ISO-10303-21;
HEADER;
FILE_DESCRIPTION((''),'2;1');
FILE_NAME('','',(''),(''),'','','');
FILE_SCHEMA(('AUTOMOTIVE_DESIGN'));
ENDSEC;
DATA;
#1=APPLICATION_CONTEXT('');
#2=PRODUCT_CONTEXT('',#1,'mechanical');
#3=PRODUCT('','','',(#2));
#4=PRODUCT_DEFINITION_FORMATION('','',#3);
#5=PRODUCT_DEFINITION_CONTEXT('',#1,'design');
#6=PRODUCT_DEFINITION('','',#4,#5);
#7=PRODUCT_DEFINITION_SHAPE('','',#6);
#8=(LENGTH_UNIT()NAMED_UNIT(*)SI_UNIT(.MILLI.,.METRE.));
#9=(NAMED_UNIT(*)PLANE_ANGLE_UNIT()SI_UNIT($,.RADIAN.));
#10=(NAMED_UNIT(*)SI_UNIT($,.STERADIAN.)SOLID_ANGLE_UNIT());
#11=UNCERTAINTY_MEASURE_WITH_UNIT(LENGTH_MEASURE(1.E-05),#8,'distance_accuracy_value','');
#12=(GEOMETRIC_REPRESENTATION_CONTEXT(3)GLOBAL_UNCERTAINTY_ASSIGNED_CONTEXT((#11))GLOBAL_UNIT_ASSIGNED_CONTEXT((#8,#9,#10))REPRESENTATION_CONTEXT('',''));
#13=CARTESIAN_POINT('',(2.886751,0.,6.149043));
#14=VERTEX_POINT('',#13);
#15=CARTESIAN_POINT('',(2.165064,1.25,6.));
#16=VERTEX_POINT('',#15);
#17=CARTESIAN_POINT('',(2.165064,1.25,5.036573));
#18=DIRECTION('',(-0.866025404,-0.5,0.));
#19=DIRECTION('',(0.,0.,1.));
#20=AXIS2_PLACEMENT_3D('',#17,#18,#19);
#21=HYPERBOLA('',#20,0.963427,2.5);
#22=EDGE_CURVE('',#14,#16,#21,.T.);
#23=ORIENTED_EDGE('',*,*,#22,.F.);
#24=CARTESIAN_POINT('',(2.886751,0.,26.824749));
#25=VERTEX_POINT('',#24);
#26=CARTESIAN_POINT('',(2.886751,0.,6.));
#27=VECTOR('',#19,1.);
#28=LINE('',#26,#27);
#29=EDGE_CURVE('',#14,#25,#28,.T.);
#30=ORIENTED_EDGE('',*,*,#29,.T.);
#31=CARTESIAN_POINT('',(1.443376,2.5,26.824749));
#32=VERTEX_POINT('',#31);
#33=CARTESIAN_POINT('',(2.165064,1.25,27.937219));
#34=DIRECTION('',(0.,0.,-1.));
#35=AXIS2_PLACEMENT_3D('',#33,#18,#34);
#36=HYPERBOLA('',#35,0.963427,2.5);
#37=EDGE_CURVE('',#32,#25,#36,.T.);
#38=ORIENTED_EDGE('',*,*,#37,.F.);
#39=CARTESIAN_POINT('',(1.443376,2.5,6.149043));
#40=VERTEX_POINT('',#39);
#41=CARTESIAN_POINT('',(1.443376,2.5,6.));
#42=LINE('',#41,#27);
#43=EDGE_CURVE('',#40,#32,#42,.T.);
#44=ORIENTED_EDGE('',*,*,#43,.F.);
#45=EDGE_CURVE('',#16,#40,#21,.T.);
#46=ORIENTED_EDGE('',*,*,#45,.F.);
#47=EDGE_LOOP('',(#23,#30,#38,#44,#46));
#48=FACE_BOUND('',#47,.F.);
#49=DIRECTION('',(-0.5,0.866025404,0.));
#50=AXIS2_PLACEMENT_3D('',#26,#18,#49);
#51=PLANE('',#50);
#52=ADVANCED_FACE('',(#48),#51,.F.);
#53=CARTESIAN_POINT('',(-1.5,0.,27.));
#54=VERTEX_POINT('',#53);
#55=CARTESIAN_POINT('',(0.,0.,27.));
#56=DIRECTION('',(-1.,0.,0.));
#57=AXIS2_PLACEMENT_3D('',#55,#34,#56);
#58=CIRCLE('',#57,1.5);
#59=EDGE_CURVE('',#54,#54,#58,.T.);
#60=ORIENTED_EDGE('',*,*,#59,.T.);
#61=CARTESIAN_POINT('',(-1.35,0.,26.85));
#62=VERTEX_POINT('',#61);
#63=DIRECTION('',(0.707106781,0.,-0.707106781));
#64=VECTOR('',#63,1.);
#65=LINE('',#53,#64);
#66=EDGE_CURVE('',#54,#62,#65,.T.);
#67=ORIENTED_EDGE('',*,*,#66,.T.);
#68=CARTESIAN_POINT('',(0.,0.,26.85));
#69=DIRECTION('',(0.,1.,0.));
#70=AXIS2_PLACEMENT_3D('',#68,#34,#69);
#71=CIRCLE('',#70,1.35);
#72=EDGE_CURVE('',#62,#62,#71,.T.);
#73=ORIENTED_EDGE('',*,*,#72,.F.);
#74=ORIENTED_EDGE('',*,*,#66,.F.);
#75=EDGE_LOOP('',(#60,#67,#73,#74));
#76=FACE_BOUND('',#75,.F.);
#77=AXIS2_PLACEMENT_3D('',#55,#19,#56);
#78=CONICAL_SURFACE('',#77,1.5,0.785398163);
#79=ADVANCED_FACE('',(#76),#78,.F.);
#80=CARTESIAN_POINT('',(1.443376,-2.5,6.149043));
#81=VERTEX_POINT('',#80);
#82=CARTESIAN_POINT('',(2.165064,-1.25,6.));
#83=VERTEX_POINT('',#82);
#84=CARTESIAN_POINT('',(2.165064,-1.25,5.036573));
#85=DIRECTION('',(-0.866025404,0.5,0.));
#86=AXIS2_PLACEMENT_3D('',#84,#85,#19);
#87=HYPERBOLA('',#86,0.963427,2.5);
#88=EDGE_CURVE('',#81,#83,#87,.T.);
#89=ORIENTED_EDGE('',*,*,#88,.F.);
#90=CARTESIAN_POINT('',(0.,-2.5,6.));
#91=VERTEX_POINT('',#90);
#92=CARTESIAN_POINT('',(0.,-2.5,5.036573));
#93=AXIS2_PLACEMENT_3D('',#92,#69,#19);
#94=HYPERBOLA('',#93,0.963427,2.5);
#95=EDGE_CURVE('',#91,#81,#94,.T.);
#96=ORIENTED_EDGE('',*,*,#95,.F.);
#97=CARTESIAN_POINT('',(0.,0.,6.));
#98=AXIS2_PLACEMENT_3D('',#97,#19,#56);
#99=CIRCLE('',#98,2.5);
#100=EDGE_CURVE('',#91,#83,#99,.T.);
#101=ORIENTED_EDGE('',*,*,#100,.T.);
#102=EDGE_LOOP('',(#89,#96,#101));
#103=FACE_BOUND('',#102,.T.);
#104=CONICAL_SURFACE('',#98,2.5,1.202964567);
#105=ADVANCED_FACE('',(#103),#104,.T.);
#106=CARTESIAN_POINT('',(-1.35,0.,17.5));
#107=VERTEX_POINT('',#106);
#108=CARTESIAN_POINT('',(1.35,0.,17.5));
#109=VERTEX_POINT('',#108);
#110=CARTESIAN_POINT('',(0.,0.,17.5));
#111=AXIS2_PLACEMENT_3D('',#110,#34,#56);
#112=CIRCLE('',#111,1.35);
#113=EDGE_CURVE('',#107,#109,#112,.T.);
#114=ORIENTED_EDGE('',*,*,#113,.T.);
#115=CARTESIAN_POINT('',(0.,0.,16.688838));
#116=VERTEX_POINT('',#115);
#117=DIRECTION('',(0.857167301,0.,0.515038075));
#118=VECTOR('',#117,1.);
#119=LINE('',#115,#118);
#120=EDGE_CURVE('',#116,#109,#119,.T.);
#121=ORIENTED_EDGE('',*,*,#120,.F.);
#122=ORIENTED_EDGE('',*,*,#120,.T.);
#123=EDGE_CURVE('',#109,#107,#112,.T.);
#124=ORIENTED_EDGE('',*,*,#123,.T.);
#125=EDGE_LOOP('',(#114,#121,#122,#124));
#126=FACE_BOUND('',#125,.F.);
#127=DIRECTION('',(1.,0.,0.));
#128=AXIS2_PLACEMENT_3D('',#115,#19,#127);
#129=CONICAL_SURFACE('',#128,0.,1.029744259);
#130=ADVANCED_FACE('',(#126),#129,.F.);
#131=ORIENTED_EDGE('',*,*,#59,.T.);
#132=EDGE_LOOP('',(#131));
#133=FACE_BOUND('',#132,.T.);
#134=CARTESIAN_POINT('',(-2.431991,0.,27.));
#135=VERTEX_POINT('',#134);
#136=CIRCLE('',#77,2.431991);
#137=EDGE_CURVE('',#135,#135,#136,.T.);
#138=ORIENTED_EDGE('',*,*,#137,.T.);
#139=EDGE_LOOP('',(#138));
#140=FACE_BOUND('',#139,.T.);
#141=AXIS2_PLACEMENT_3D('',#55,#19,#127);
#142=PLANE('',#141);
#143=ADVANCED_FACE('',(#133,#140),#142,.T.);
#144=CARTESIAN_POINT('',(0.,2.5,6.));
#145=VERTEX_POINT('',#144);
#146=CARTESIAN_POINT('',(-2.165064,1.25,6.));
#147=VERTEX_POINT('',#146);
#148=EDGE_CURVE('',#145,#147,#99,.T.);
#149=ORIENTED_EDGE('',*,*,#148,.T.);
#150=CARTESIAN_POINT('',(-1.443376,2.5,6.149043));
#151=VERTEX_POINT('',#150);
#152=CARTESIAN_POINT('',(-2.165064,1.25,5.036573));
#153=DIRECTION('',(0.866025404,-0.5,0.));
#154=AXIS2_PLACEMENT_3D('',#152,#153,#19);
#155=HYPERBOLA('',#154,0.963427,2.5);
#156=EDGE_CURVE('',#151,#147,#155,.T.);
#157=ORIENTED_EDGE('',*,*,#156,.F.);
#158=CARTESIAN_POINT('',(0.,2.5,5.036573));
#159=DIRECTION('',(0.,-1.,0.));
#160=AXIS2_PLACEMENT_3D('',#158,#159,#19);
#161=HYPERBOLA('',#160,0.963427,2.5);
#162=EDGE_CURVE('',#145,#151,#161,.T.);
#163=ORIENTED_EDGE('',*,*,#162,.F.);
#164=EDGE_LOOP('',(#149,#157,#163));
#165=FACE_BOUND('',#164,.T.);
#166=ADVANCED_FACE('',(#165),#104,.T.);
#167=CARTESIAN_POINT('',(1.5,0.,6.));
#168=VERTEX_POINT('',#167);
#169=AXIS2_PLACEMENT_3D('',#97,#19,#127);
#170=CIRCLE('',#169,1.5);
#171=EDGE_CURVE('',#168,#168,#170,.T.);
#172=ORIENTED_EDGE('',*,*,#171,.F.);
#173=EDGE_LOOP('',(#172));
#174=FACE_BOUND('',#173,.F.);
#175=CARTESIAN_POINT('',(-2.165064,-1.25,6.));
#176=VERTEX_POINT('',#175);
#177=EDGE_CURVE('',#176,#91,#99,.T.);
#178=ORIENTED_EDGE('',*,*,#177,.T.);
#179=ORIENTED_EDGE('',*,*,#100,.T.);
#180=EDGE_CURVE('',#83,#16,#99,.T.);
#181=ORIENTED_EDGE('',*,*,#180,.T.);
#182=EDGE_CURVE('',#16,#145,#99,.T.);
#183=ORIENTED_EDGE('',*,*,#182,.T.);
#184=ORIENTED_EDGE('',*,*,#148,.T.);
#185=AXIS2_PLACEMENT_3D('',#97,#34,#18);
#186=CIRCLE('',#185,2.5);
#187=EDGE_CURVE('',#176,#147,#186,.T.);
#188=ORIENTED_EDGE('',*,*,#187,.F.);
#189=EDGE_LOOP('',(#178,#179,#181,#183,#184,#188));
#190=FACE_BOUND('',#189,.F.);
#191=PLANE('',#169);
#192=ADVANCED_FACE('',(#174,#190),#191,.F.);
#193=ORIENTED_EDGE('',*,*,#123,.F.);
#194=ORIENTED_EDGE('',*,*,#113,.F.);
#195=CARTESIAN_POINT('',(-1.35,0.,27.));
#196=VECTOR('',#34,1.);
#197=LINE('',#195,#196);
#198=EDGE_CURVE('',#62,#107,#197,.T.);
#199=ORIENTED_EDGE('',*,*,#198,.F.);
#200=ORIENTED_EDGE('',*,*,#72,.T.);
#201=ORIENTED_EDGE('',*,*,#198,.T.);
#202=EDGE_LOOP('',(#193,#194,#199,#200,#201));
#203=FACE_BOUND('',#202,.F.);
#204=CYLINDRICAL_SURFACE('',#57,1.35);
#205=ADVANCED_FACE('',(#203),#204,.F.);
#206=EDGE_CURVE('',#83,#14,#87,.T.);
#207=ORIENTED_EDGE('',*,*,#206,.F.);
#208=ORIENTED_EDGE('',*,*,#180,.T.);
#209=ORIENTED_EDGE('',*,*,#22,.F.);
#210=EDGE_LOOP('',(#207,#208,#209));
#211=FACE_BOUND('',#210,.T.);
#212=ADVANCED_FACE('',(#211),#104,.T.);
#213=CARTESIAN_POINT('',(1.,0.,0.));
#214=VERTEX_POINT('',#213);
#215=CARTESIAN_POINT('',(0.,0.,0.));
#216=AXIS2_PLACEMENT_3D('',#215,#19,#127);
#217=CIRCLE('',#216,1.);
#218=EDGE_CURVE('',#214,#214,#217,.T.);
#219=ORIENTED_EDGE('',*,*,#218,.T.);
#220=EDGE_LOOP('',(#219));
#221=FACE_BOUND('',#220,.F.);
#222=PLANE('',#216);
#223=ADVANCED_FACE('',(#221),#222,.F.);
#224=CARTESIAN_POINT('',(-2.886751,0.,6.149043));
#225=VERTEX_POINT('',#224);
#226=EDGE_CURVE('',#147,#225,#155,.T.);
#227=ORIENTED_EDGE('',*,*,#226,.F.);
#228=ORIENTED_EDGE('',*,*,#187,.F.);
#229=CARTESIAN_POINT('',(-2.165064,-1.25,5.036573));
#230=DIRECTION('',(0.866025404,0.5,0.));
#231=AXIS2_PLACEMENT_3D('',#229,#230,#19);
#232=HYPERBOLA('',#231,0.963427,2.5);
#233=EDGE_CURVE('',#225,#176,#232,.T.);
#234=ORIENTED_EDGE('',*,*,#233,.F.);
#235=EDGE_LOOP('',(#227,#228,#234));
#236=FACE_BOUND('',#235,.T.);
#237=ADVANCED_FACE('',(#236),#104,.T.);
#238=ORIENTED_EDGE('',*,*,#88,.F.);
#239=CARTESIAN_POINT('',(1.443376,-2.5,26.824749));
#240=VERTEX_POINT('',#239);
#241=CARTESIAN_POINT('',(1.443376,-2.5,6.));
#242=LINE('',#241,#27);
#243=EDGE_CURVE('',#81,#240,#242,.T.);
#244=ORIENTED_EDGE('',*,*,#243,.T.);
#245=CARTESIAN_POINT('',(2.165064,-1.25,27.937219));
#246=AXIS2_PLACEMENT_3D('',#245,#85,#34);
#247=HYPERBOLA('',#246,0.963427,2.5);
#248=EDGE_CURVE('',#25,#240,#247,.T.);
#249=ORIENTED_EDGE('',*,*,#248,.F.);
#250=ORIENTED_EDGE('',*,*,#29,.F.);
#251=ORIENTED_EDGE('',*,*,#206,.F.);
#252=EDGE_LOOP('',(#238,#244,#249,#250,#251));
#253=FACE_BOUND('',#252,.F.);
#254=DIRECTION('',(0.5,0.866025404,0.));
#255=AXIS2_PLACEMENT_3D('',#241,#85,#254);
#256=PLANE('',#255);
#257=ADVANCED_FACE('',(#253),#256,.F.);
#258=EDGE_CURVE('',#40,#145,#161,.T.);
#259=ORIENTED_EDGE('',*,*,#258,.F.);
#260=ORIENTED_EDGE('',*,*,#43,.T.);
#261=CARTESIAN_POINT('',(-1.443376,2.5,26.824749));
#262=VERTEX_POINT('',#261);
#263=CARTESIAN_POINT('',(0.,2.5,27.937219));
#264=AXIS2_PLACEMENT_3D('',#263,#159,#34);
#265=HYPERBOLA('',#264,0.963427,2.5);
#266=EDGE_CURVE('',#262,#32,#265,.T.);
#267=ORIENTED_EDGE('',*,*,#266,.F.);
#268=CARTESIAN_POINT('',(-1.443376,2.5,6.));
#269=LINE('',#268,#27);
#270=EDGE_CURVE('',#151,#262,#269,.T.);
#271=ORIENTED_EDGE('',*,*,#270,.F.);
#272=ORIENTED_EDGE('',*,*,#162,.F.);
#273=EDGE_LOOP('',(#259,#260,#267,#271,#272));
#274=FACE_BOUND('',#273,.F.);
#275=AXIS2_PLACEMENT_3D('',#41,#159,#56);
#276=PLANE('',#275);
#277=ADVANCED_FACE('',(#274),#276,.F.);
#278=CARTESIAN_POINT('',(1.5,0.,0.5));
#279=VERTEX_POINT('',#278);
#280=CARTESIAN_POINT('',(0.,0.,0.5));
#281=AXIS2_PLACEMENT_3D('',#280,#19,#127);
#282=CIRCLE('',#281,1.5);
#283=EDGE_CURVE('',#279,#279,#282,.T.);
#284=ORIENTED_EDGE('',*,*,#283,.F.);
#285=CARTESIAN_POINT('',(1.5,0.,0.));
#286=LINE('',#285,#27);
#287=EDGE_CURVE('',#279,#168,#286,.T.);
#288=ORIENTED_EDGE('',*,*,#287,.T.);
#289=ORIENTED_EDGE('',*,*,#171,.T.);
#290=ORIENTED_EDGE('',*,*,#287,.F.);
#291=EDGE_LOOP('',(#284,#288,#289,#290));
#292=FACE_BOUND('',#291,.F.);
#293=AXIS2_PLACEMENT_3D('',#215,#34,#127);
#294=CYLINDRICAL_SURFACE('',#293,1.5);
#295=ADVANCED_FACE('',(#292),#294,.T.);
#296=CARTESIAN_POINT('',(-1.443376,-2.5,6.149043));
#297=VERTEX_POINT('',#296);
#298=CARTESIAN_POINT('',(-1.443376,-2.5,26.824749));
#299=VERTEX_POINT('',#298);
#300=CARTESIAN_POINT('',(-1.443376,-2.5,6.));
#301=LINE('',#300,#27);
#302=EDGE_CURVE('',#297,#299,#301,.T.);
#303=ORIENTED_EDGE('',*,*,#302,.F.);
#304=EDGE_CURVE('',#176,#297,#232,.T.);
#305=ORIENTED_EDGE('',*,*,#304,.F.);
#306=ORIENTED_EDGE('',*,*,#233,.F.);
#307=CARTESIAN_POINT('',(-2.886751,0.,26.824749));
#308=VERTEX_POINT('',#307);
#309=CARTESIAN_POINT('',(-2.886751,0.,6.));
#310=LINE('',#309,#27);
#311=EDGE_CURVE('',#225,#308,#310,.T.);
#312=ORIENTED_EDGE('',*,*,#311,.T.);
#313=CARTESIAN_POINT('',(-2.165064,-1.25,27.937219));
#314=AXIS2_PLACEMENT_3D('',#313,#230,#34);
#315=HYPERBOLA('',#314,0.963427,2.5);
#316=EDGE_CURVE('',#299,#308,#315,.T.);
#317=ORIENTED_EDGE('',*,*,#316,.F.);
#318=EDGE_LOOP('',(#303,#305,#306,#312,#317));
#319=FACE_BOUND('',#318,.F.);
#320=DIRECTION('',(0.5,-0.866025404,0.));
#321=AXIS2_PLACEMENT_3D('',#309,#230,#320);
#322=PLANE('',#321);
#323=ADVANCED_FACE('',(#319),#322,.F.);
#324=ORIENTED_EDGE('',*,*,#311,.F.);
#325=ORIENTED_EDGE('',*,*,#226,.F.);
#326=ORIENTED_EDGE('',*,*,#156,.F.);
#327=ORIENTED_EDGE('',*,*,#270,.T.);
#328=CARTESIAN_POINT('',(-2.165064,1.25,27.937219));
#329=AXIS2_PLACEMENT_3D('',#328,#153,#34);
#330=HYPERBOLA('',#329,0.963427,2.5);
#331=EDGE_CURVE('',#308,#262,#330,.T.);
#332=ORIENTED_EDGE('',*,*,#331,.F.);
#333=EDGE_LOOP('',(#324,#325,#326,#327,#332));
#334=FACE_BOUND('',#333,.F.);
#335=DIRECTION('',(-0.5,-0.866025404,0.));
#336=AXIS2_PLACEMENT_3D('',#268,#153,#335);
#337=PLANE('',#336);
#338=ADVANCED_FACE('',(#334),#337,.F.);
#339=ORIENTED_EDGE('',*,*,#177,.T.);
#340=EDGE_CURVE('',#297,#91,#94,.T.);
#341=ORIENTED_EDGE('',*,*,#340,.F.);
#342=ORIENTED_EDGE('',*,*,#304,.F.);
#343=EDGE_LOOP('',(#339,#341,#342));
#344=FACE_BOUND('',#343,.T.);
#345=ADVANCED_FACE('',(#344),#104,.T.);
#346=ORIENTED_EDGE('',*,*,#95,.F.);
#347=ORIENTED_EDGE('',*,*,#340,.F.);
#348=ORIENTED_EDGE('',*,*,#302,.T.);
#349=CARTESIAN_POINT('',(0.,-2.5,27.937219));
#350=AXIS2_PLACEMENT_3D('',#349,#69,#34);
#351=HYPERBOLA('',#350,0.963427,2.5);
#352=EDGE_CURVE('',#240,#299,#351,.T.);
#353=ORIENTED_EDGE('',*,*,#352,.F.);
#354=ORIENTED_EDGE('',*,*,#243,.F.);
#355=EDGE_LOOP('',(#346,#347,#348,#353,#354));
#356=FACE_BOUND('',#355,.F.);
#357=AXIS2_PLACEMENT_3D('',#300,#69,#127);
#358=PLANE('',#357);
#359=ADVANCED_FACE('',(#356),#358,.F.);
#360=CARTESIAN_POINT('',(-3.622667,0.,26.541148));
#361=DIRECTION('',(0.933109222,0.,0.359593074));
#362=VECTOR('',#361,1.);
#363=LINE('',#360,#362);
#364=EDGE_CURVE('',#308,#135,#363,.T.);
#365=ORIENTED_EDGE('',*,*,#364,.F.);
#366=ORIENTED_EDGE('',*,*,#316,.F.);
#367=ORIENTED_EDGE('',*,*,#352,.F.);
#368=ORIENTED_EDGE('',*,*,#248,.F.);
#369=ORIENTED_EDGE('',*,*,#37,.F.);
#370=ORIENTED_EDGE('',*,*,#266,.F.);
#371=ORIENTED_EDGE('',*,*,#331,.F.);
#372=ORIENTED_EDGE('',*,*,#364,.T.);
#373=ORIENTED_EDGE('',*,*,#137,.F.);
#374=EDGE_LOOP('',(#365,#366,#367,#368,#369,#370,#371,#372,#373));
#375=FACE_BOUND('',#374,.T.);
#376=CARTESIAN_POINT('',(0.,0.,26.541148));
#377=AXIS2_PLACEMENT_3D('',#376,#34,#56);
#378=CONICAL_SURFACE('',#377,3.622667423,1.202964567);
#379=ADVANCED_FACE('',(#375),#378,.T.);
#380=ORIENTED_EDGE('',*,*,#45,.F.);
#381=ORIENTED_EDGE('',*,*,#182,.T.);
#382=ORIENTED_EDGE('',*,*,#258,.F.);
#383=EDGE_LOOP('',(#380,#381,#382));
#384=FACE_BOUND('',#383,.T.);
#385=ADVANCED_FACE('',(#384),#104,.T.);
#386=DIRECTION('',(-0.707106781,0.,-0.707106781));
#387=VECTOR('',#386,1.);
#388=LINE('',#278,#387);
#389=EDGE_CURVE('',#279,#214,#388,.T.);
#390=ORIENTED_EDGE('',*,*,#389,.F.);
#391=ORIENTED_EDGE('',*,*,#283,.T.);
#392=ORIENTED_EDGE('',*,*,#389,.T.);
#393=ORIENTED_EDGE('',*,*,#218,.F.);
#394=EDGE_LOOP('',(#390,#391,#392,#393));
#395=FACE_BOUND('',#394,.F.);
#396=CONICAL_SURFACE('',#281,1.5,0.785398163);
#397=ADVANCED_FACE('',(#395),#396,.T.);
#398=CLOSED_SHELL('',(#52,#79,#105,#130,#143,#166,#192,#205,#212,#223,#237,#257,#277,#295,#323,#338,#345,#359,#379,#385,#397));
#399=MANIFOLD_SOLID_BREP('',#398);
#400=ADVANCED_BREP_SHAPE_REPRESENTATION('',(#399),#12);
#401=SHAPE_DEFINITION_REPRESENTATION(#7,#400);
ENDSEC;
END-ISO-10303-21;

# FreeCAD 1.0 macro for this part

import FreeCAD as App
import Part
import Sketcher

V = App.Vector
Q = App.Units.Quantity


def edges_at(feature, points):
    """Names of the edges that pass closest to the given points."""
    edges = feature.Shape.Edges
    near = lambda p: min(range(len(edges)), key=lambda i: edges[i].distToShape(Part.Vertex(*p))[0])
    return sorted({f"Edge{near(p) + 1}" for p in points})

doc = App.newDocument("Part")
body = doc.addObject("PartDesign::Body", "Body")

sketch1 = doc.addObject("Sketcher::SketchObject", "Sketch")
body.addObject(sketch1)
sketch1.AttachmentSupport = (doc.XY_Plane, [""])
sketch1.MapMode = "FlatFace"
sketch1.addGeometry(Part.Circle(V(0, 0, 0), V(0, 0, 1), 1.5), False)
sketch1.addConstraint([
    Sketcher.Constraint("Coincident", 0, 3, -1, 1),
    Sketcher.Constraint("Diameter", 0, 3.0),
])
pad1 = doc.addObject("PartDesign::Pad", "Pad")
body.addObject(pad1)
pad1.Profile = sketch1
pad1.Length = 6

sketch2 = doc.addObject("Sketcher::SketchObject", "Sketch001")
body.addObject(sketch2)
sketch2.AttachmentSupport = (doc.XY_Plane, [""])
sketch2.MapMode = "FlatFace"
sketch2.AttachmentOffset = App.Placement(V(0, 0, 6), App.Rotation())
sketch2.addGeometry([
    Part.LineSegment(V(-1.4, -2.5, 0), V(1.4, -2.5, 0)),
    Part.LineSegment(V(1.4, -2.5, 0), V(2.9, 0, 0)),
    Part.LineSegment(V(2.9, 0, 0), V(1.4, 2.5, 0)),
    Part.LineSegment(V(1.4, 2.5, 0), V(-1.4, 2.5, 0)),
    Part.LineSegment(V(-1.4, 2.5, 0), V(-2.9, 0, 0)),
    Part.LineSegment(V(-2.9, 0, 0), V(-1.4, -2.5, 0)),
], False)
sketch2.addConstraint([
    Sketcher.Constraint("Coincident", 0, 2, 1, 1),
    Sketcher.Constraint("Coincident", 1, 2, 2, 1),
    Sketcher.Constraint("Coincident", 2, 2, 3, 1),
    Sketcher.Constraint("Coincident", 3, 2, 4, 1),
    Sketcher.Constraint("Coincident", 4, 2, 5, 1),
    Sketcher.Constraint("Coincident", 5, 2, 0, 1),
    Sketcher.Constraint("Horizontal", 0),
    Sketcher.Constraint("Horizontal", 3),
    Sketcher.Constraint("Symmetric", 0, 2, 3, 2, -1, 1),
    Sketcher.Constraint("Symmetric", 1, 2, 4, 2, -1, 1),
    Sketcher.Constraint("PointOnObject", 1, 2, -1),
    Sketcher.Constraint("Parallel", 2, 5),
    Sketcher.Constraint("Vertical", 0, 2, 2, 2),
    Sketcher.Constraint("Angle", 1, Q("60 deg")),
    Sketcher.Constraint("DistanceY", 0, 2, 2, 2, 5.0),
    Sketcher.Constraint("DistanceX", 0, 1, 0, 2, 2.886751),
])
pad2 = doc.addObject("PartDesign::Pad", "Pad001")
body.addObject(pad2)
pad2.Profile = sketch2
pad2.Length = 21

sketch3 = doc.addObject("Sketcher::SketchObject", "Sketch002")
body.addObject(sketch3)
sketch3.AttachmentSupport = (doc.XY_Plane, [""])
sketch3.MapMode = "FlatFace"
sketch3.AttachmentOffset = App.Placement(V(0, 0, 27), App.Rotation())
sketch3.addGeometry(Part.Circle(V(0, 0, 0), V(0, 0, 1), 1.4), False)
sketch3.addConstraint([
    Sketcher.Constraint("Coincident", 0, 3, -1, 1),
    Sketcher.Constraint("Diameter", 0, 2.7),
])
doc.recompute()
hole = doc.addObject("PartDesign::Hole", "Hole")
body.addObject(hole)
hole.Profile = sketch3
hole.ThreadType = "None"
hole.Diameter = 2.7
hole.DepthType = "Dimension"
hole.Depth = 9.5
hole.DrillPoint = "Angled"
hole.DrillPointAngle = 118
hole.HoleCutType = "Countersink"
hole.HoleCutDiameter = 3
hole.HoleCutCountersinkAngle = 90

sketch4 = doc.addObject("Sketcher::SketchObject", "Sketch003")
body.addObject(sketch4)
sketch4.AttachmentSupport = (doc.XZ_Plane, [""])
sketch4.MapMode = "FlatFace"
sketch4.addGeometry([
    Part.LineSegment(V(-3.69, 6.46, 0), V(-3.69, 6, 0)),
    Part.LineSegment(V(-3.69, 6, 0), V(-2.5, 6, 0)),
    Part.LineSegment(V(-2.5, 6, 0), V(-3.69, 6.46, 0)),
    Part.LineSegment(V(-3.62, 26.54, 0), V(-2.43, 27, 0)),
    Part.LineSegment(V(-2.43, 27, 0), V(-3.62, 27, 0)),
    Part.LineSegment(V(-3.62, 27, 0), V(-3.62, 26.54, 0)),
], False)
sketch4.addConstraint([
    Sketcher.Constraint("Coincident", 0, 2, 1, 1),
    Sketcher.Constraint("Coincident", 1, 2, 2, 1),
    Sketcher.Constraint("Coincident", 2, 2, 0, 1),
    Sketcher.Constraint("Coincident", 3, 2, 4, 1),
    Sketcher.Constraint("Coincident", 4, 2, 5, 1),
    Sketcher.Constraint("Coincident", 5, 2, 3, 1),
    Sketcher.Constraint("Vertical", 0),
    Sketcher.Constraint("Horizontal", 1),
    Sketcher.Constraint("Horizontal", 4),
    Sketcher.Constraint("Vertical", 5),
    Sketcher.Constraint("Equal", 1, 4),
    Sketcher.Constraint("Equal", 0, 5),
    Sketcher.Constraint("DistanceY", -1, 1, 0, 2, 6.0),
    Sketcher.Constraint("DistanceY", -1, 1, 3, 2, 27.0),
    Sketcher.Constraint("DistanceX", 1, 2, -1, 1, 2.5),
    Sketcher.Constraint("DistanceY", 0, 2, 0, 1, 0.458852),
    Sketcher.Constraint("Distance", 2, 1.276031),
    Sketcher.Constraint("DistanceX", 3, 2, -1, 1, 2.431991),
])
groove = doc.addObject("PartDesign::Groove", "Groove")
body.addObject(groove)
groove.Profile = sketch4
groove.ReferenceAxis = (sketch4, ["V_Axis"])
groove.Angle = 360
doc.recompute()

chamfer = doc.addObject("PartDesign::Chamfer", "Chamfer")
body.addObject(chamfer)
chamfer.Base = (groove, edges_at(groove, [(-1.5, 0, 0)]))
chamfer.Size = 0.5

doc.recompute()
